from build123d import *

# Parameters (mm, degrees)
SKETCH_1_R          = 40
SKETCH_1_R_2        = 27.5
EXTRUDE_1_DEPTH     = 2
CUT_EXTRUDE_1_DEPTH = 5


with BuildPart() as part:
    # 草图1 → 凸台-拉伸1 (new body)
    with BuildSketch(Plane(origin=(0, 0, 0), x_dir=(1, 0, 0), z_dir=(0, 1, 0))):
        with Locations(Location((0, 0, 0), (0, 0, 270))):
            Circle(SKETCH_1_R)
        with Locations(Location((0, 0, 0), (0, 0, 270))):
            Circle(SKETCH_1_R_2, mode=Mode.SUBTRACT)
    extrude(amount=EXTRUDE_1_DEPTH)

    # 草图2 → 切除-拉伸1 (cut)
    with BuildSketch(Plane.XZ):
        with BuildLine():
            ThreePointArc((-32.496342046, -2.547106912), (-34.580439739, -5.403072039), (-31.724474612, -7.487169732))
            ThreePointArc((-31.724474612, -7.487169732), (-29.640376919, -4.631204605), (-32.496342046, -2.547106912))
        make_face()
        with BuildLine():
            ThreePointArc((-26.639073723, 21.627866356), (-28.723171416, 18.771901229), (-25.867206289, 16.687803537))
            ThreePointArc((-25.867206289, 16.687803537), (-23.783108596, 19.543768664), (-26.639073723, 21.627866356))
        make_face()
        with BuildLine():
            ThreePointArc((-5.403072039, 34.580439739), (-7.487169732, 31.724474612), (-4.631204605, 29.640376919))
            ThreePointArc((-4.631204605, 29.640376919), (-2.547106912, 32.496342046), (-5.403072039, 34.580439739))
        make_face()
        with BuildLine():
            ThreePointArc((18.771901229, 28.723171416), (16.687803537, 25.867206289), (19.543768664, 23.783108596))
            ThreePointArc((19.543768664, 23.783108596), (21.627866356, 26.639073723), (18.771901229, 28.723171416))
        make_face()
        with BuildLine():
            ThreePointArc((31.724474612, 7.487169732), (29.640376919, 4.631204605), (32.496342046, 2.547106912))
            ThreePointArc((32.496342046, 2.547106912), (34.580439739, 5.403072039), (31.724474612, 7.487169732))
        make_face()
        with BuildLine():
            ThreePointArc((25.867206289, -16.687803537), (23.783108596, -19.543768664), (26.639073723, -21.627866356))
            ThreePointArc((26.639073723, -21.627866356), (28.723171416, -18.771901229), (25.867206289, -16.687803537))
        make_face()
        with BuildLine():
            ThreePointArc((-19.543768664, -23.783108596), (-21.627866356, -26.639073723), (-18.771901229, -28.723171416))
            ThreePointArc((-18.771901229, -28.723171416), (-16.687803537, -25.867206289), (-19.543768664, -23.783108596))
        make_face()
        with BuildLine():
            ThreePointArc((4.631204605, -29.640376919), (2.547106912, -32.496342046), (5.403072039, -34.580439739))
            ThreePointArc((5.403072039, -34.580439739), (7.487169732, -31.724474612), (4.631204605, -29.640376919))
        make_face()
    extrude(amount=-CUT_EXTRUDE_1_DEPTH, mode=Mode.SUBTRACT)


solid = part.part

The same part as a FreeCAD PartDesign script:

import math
import FreeCAD as App
import Part
import Sketcher
from FreeCAD import Vector
Q = App.Units.Quantity

doc = App.newDocument("Part")
params = doc.addObject("Spreadsheet::Sheet", "Params")
for row, (alias, value) in enumerate([
    ("sketch1_diameter", "80 mm"),
    ("sketch1_diameter2", "55 mm"),
    ("pad1_length", "2 mm"),
    ("sketch2_diameter", "5 mm"),
    ("pocket1_length", "5 mm"),
], start=1):
    params.set(f"A{row}", alias)
    params.set(f"B{row}", "=" + value)
    params.setAlias(f"B{row}", alias)

body = doc.addObject("PartDesign::Body", "Body")

# Sketch on XZ plane
sketch1 = body.newObject("Sketcher::SketchObject", "Sketch")
sketch1.AttachmentSupport = (doc.getObject("XZ_Plane"), [""])
sketch1.MapMode = "FlatFace"
sketch1.addGeometry([
    Part.Circle(Vector(0, 0, 0), Vector(0, 0, 1), 40),
    Part.Circle(Vector(0, 0, 0), Vector(0, 0, 1), 27.5),
], False)
sketch1.addConstraint([
    Sketcher.Constraint("Coincident", 0, 3, -1, 1),
    Sketcher.Constraint("Coincident", 1, 3, -1, 1),
    Sketcher.Constraint("Diameter", 0, Q("80 mm")),
    Sketcher.Constraint("Diameter", 1, Q("55 mm")),
])
sketch1.setExpression("Constraints[2]", "Params.sketch1_diameter")
sketch1.setExpression("Constraints[3]", "Params.sketch1_diameter2")
pad1 = body.newObject("PartDesign::Pad", "Pad")
pad1.Profile = sketch1
pad1.setExpression("Length", "Params.pad1_length")
pad1.Reversed = True

# Sketch on XZ plane
sketch2 = body.newObject("Sketcher::SketchObject", "Sketch001")
sketch2.AttachmentSupport = (doc.getObject("XZ_Plane"), [""])
sketch2.MapMode = "FlatFace"
sketch2.addGeometry([
    Part.Circle(Vector(-32.110408, -5.017138, 0), Vector(0, 0, 1), 2.5),  # 0
    Part.ArcOfCircle(Part.Circle(Vector(-26.25314, 19.157835, 0), Vector(0, 0, 1), 2.5), math.radians(98.880462), math.radians(278.880462)),  # 1
    Part.ArcOfCircle(Part.Circle(Vector(-26.25314, 19.157835, 0), Vector(0, 0, 1), 2.5), math.radians(-81.119538), math.radians(98.880462)),  # 2
    Part.Circle(Vector(-5.017138, 32.110408, 0), Vector(0, 0, 1), 2.5),  # 3
    Part.ArcOfCircle(Part.Circle(Vector(19.157835, 26.25314, 0), Vector(0, 0, 1), 2.5), math.radians(98.880462), math.radians(278.880462)),  # 4
    Part.ArcOfCircle(Part.Circle(Vector(19.157835, 26.25314, 0), Vector(0, 0, 1), 2.5), math.radians(-81.119538), math.radians(98.880462)),  # 5
    Part.Circle(Vector(32.110408, 5.017138, 0), Vector(0, 0, 1), 2.5),  # 6
    Part.ArcOfCircle(Part.Circle(Vector(26.25314, -19.157835, 0), Vector(0, 0, 1), 2.5), math.radians(98.880462), math.radians(278.880462)),  # 7
    Part.ArcOfCircle(Part.Circle(Vector(26.25314, -19.157835, 0), Vector(0, 0, 1), 2.5), math.radians(-81.119538), math.radians(98.880462)),  # 8
    Part.ArcOfCircle(Part.Circle(Vector(-19.157835, -26.25314, 0), Vector(0, 0, 1), 2.5), math.radians(98.880462), math.radians(278.880462)),  # 9
    Part.ArcOfCircle(Part.Circle(Vector(-19.157835, -26.25314, 0), Vector(0, 0, 1), 2.5), math.radians(-81.119538), math.radians(98.880462)),  # 10
    Part.Circle(Vector(5.017138, -32.110408, 0), Vector(0, 0, 1), 2.5),  # 11
], False)
sketch2.addConstraint([
    Sketcher.Constraint("Tangent", 1, 1, 2, 2),
    Sketcher.Constraint("Coincident", 2, 1, 1, 2),
    Sketcher.Constraint("Tangent", 4, 1, 5, 2),
    Sketcher.Constraint("Coincident", 5, 1, 4, 2),
    Sketcher.Constraint("Tangent", 7, 1, 8, 2),
    Sketcher.Constraint("Coincident", 8, 1, 7, 2),
    Sketcher.Constraint("Tangent", 9, 1, 10, 2),
    Sketcher.Constraint("Coincident", 10, 1, 9, 2),
    Sketcher.Constraint("Equal", 0, 1),
    Sketcher.Constraint("Equal", 2, 3),
    Sketcher.Constraint("Equal", 3, 4),
    Sketcher.Constraint("Equal", 5, 6),
    Sketcher.Constraint("Equal", 6, 7),
    Sketcher.Constraint("Equal", 8, 9),
    Sketcher.Constraint("Equal", 10, 11),
    Sketcher.Constraint("Symmetric", 0, 3, 6, 3, -1, 1),
    Sketcher.Constraint("Symmetric", 1, 3, 7, 3, -1, 1),
    Sketcher.Constraint("Symmetric", 4, 3, 9, 3, -1, 1),
    Sketcher.Constraint("Symmetric", 3, 3, 11, 3, -1, 1),
    Sketcher.Constraint("Diameter", 0, Q("5 mm")),
    Sketcher.Constraint("DistanceX", 2, 3, 3, 3, Q("21.236002 mm")),
    Sketcher.Constraint("DistanceY", 6, 3, 4, 3, Q("21.236002 mm")),
    Sketcher.Constraint("DistanceX", -1, 1, 4, 1, Q("18.771901 mm")),
    Sketcher.Constraint("DistanceX", 10, 1, -1, 1, Q("18.771901 mm")),
    Sketcher.Constraint("DistanceY", 5, 1, 3, 3, Q("8.3273 mm")),
    Sketcher.Constraint("DistanceY", 11, 3, 9, 1, Q("8.3273 mm")),
    Sketcher.Constraint("DistanceX", 0, 3, -1, 1, Q("32.110408 mm")),
    Sketcher.Constraint("DistanceY", 0, 3, -1, 1, Q("5.017138 mm")),
    Sketcher.Constraint("DistanceX", 1, 3, -1, 1, Q("26.25314 mm")),
    Sketcher.Constraint("DistanceY", -1, 1, 3, 3, Q("32.110408 mm")),
    Sketcher.Constraint("DistanceY", -1, 1, 4, 1, Q("28.723171 mm")),
    Sketcher.Constraint("DistanceY", 2, 3, 1, 1, Q("2.470031 mm")),
    Sketcher.Constraint("DistanceY", 1, 1, 3, 3, Q("10.482542 mm")),
    Sketcher.Constraint("DistanceY", 2, 1, 1, 3, Q("2.470031 mm")),
    Sketcher.Constraint("DistanceY", 8, 3, 7, 1, Q("2.470031 mm")),
    Sketcher.Constraint("DistanceY", 8, 1, 7, 3, Q("2.470031 mm")),
])
sketch2.setExpression("Constraints[19]", "Params.sketch2_diameter")
pocket1 = body.newObject("PartDesign::Pocket", "Pocket")
pocket1.Profile = sketch2
pocket1.setExpression("Length", "Params.pocket1_length")

doc.recompute()
